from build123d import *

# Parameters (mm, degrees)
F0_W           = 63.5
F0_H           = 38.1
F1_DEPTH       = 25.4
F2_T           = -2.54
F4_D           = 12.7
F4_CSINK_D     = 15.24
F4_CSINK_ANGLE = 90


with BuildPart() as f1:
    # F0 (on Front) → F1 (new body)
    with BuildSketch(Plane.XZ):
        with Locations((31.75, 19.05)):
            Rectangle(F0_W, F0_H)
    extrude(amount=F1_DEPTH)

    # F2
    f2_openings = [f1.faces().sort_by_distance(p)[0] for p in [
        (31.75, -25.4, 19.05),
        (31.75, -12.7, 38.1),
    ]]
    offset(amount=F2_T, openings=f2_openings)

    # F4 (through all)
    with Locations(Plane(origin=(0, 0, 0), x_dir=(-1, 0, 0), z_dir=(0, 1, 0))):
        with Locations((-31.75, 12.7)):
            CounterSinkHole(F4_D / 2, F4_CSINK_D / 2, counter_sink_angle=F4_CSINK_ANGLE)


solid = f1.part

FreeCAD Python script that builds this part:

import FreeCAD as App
import Part
import Sketcher

V = App.Vector
Q = App.Units.Quantity


def faces_at(feature, points):
    """Names of the faces that lie closest to the given points."""
    faces = feature.Shape.Faces
    near = lambda p: min(range(len(faces)), key=lambda i: faces[i].distToShape(Part.Vertex(*p))[0])
    return sorted({f"Face{near(p) + 1}" for p in points})


def add_polygon(sketch, points):
    """Adds a closed chain of lines whose ends are joined by coincident constraints."""
    first, n = sketch.GeometryCount, len(points)
    for a, b in zip(points, points[1:] + points[:1]):
        sketch.addGeometry(Part.LineSegment(App.Vector(*a, 0), App.Vector(*b, 0)), False)
    for i in range(n):
        sketch.addConstraint(Sketcher.Constraint("Coincident", first + i, 2, first + (i + 1) % n, 1))

doc = App.newDocument("Part")
body = doc.addObject("PartDesign::Body", "Body")

sketch1 = doc.addObject("Sketcher::SketchObject", "Sketch")
body.addObject(sketch1)
sketch1.AttachmentSupport = (doc.XZ_Plane, [""])
sketch1.MapMode = "FlatFace"
add_polygon(sketch1, [(0, 38), (0, 0), (64, 0), (64, 38)])
sketch1.addConstraint([
    Sketcher.Constraint("Vertical", 0),
    Sketcher.Constraint("Horizontal", 1),
    Sketcher.Constraint("Vertical", 2),
    Sketcher.Constraint("Horizontal", 3),
    Sketcher.Constraint("Coincident", 0, 2, -1, 1),
    Sketcher.Constraint("DistanceX", 1, 1, 1, 2, Q("2.5 in")),
    Sketcher.Constraint("DistanceY", 0, 2, 0, 1, Q("1.5 in")),
])
pad1 = doc.addObject("PartDesign::Pad", "Pad")
body.addObject(pad1)
pad1.Profile = sketch1
pad1.Length = Q("1 in")
doc.recompute()

thickness = doc.addObject("PartDesign::Thickness", "Thickness")
body.addObject(thickness)
thickness.Base = (pad1, faces_at(pad1, [(31.75, -25.4, 19.05), (31.75, -12.7, 38.1)]))
thickness.Value = Q("0.1 in")
thickness.Reversed = True
thickness.Join = "Arc"

sketch2 = doc.addObject("Sketcher::SketchObject", "Sketch001")
body.addObject(sketch2)
sketch2.AttachmentSupport = (doc.XZ_Plane, [""])
sketch2.MapMode = "FlatFace"
sketch2.addGeometry(Part.Circle(V(32, 13, 0), V(0, 0, 1), 6), False)
sketch2.addConstraint([
    Sketcher.Constraint("Diameter", 0, Q("0.5 in")),
    Sketcher.Constraint("DistanceY", -1, 1, 0, 3, Q("0.5 in")),
    Sketcher.Constraint("DistanceX", -1, 1, 0, 3, Q("1.25 in")),
])
doc.recompute()
hole = doc.addObject("PartDesign::Hole", "Hole")
body.addObject(hole)
hole.Profile = sketch2
hole.ThreadType = "None"
hole.Diameter = Q("0.5 in")
hole.DepthType = "ThroughAll"
hole.HoleCutType = "Countersink"
hole.HoleCutDiameter = Q("0.6 in")
hole.HoleCutCountersinkAngle = 90
hole.Reversed = True

doc.recompute()
